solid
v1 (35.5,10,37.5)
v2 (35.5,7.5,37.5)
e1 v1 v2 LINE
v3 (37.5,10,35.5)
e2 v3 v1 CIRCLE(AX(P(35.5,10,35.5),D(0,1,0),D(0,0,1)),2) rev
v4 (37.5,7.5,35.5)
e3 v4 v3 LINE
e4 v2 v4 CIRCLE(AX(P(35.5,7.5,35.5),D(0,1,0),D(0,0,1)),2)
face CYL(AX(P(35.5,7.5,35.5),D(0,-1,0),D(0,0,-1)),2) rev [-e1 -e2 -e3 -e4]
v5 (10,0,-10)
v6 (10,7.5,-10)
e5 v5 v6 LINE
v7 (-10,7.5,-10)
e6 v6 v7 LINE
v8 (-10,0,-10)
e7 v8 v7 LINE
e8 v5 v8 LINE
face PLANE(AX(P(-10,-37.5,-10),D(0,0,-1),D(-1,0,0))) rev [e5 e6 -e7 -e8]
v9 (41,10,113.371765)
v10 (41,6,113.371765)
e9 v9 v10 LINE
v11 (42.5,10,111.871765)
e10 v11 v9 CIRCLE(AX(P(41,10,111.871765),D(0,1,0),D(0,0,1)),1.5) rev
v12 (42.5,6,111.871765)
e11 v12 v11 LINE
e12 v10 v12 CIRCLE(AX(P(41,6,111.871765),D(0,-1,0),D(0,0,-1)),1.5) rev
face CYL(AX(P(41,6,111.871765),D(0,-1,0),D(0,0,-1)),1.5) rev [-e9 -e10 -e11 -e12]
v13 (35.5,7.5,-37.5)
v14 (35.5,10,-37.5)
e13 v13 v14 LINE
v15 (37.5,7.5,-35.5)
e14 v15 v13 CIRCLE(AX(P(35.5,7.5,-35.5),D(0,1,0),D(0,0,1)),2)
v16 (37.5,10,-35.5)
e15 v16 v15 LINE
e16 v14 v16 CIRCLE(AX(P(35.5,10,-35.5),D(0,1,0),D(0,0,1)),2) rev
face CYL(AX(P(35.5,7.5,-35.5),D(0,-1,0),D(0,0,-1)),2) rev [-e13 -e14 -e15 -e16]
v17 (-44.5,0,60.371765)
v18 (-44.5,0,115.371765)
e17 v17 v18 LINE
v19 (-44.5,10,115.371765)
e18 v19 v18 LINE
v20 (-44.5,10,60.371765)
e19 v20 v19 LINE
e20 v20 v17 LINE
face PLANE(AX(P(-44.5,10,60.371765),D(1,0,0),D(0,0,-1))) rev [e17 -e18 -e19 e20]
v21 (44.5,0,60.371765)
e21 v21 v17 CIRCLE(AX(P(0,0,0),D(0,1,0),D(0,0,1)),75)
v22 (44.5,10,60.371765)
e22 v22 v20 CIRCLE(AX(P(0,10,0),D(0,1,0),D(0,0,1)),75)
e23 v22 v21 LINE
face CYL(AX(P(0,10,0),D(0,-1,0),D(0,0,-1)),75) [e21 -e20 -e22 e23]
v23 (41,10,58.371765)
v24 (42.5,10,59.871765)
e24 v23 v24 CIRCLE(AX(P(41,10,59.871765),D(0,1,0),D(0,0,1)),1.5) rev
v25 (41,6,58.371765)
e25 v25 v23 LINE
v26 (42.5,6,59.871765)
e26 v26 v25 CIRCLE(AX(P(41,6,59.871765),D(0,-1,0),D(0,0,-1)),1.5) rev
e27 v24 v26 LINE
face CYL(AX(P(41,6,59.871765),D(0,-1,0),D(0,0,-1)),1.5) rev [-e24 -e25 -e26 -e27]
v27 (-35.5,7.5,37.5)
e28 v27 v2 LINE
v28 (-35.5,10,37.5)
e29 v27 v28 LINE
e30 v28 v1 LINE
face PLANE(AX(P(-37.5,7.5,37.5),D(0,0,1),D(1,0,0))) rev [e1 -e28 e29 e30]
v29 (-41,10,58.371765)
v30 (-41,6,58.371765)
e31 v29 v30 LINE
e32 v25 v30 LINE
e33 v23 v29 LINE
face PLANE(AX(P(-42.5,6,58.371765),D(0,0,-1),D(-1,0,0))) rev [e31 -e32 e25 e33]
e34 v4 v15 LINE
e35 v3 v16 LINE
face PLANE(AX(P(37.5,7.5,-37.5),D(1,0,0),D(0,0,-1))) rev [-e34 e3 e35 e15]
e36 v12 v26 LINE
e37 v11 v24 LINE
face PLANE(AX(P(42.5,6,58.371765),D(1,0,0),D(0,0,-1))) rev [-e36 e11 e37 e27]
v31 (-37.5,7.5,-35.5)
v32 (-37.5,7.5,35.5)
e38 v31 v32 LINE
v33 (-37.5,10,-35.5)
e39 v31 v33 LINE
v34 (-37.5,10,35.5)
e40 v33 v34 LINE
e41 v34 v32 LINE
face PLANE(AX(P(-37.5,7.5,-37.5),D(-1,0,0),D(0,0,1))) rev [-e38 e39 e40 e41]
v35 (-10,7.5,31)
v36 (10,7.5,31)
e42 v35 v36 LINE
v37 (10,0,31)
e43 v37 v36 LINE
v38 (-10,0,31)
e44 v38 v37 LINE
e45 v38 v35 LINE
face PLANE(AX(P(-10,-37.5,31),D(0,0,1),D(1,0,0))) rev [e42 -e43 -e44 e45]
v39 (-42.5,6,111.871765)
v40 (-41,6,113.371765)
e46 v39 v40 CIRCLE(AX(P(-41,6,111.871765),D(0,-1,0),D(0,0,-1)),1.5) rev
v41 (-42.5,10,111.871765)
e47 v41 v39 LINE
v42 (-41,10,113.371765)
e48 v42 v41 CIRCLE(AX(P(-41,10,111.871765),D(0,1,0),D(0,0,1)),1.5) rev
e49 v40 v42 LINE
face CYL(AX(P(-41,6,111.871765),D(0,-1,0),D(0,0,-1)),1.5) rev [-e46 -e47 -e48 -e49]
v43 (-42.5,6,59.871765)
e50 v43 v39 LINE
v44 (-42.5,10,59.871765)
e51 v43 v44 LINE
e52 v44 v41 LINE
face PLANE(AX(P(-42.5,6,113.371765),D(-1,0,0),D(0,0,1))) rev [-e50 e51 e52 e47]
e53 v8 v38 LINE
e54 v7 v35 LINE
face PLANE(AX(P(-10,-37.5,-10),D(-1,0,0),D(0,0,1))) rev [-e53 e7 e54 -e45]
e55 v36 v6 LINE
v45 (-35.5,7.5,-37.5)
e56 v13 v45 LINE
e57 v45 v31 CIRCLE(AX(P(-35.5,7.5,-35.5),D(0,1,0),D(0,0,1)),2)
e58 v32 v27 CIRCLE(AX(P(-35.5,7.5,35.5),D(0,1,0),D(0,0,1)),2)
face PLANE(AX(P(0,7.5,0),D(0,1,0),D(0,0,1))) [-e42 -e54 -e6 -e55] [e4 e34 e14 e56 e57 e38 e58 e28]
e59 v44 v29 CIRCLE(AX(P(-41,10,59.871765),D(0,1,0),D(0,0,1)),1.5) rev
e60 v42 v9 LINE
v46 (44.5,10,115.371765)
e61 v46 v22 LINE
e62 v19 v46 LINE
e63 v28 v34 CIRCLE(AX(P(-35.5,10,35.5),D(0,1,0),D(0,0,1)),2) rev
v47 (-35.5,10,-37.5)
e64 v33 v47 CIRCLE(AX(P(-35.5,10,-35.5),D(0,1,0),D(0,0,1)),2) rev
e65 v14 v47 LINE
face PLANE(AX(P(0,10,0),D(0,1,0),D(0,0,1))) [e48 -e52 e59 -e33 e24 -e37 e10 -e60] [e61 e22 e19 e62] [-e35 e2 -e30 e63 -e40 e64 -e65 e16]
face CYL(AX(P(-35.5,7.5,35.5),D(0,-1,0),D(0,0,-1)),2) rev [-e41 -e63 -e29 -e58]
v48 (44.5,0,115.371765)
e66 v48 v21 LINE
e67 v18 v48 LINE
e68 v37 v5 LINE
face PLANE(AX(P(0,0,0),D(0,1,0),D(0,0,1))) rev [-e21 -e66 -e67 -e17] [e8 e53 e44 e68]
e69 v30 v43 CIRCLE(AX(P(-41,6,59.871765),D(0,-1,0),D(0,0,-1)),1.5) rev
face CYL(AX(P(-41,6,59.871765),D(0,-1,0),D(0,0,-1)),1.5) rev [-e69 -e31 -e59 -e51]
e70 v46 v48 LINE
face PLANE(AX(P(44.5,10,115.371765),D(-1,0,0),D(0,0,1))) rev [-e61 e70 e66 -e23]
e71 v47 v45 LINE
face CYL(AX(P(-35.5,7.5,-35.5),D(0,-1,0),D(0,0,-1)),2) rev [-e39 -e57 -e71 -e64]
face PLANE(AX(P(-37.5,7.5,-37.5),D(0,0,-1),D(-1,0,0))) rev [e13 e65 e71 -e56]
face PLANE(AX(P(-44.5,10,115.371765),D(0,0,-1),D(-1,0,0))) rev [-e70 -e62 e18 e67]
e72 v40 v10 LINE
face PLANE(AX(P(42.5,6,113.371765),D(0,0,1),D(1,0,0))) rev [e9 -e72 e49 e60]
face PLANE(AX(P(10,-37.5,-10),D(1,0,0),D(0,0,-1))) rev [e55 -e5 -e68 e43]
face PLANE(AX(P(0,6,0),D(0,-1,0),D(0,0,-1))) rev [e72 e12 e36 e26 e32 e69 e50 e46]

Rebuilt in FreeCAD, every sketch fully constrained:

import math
import FreeCAD as App
import Part
import Sketcher
Q = App.Units.Quantity


def edges_at(feature, points):
    """Names of the edges that pass closest to the given points."""
    edges = feature.Shape.Edges
    near = lambda p: min(range(len(edges)), key=lambda i: edges[i].distToShape(Part.Vertex(*p))[0])
    return sorted({f"Edge{near(p) + 1}" for p in points})


def add_polygon(sketch, points):
    """Adds a closed chain of lines whose ends are joined by coincident constraints."""
    first, n = sketch.GeometryCount, len(points)
    for a, b in zip(points, points[1:] + points[:1]):
        sketch.addGeometry(Part.LineSegment(App.Vector(*a, 0), App.Vector(*b, 0)), False)
    for i in range(n):
        sketch.addConstraint(Sketcher.Constraint("Coincident", first + i, 2, first + (i + 1) % n, 1))

doc = App.newDocument("Part")
body = doc.addObject("PartDesign::Body", "Body")

sketch1 = body.newObject("Sketcher::SketchObject", "Sketch")
sketch1.AttachmentSupport = (doc.getObject("XZ_Plane"), [""])
sketch1.MapMode = "FlatFace"
sketch1.addGeometry(Part.LineSegment(App.Vector(-44, 60, 0), App.Vector(-44, 115, 0)), False)
sketch1.addGeometry(Part.LineSegment(App.Vector(-44, 115, 0), App.Vector(44, 115, 0)), False)
sketch1.addGeometry(Part.LineSegment(App.Vector(44, 115, 0), App.Vector(44, 60, 0)), False)
sketch1.addGeometry(Part.ArcOfCircle(Part.Circle(App.Vector(0, 0, 0), App.Vector(0, 0, 1), 75), math.radians(126), math.radians(414)), False)
sketch1.addConstraint(Sketcher.Constraint("Coincident", 0, 2, 1, 1))
sketch1.addConstraint(Sketcher.Constraint("Coincident", 1, 2, 2, 1))
sketch1.addConstraint(Sketcher.Constraint("Coincident", 2, 2, 3, 2))
sketch1.addConstraint(Sketcher.Constraint("Coincident", 3, 1, 0, 1))
sketch1.addConstraint(Sketcher.Constraint("Vertical", 0))
sketch1.addConstraint(Sketcher.Constraint("Horizontal", 1))
sketch1.addConstraint(Sketcher.Constraint("Vertical", 2))
sketch1.addConstraint(Sketcher.Constraint("Coincident", 3, 3, -1, 1))
sketch1.addConstraint(Sketcher.Constraint("Horizontal", 2, 2, 3, 1))
sketch1.addConstraint(Sketcher.Constraint("Radius", 3, Q("75 mm")))
sketch1.addConstraint(Sketcher.Constraint("DistanceX", 1, 1, 1, 2, Q("89 mm")))
sketch1.addConstraint(Sketcher.Constraint("DistanceY", 0, 1, 0, 2, Q("55 mm")))
pad1 = body.newObject("PartDesign::Pad", "Pad")
pad1.Profile = sketch1
pad1.Length = 10
pad1.Reversed = True

sketch2 = body.newObject("Sketcher::SketchObject", "Sketch001")
sketch2.AttachmentSupport = (doc.getObject("XZ_Plane"), [""])
sketch2.MapMode = "FlatFace"
sketch2.AttachmentOffset = App.Placement(App.Vector(0, 0, -10), App.Rotation())
add_polygon(sketch2, [(-38, -38), (-38, 38), (38, 38), (38, -38)])
sketch2.addConstraint(Sketcher.Constraint("Vertical", 0))
sketch2.addConstraint(Sketcher.Constraint("Horizontal", 1))
sketch2.addConstraint(Sketcher.Constraint("Vertical", 2))
sketch2.addConstraint(Sketcher.Constraint("Horizontal", 3))
sketch2.addConstraint(Sketcher.Constraint("Symmetric", 0, 2, 2, 2, -1, 1))
sketch2.addConstraint(Sketcher.Constraint("Equal", 3, 0))
sketch2.addConstraint(Sketcher.Constraint("DistanceX", 1, 1, 1, 2, Q("75 mm")))
pocket1 = body.newObject("PartDesign::Pocket", "Pocket")
pocket1.Profile = sketch2
pocket1.Length = 2.5
pocket1.Reversed = True
doc.recompute()

fillet = body.newObject("PartDesign::Fillet", "Fillet")
fillet.Base = (pocket1, edges_at(pocket1, [
    (37.5, 8.75, -37.5),
    (37.5, 8.75, 37.5),
    (-37.5, 8.75, 37.5),
    (-37.5, 8.75, -37.5),
]))
fillet.Radius = 2

sketch3 = body.newObject("Sketcher::SketchObject", "Sketch002")
sketch3.AttachmentSupport = (doc.getObject("XZ_Plane"), [""])
sketch3.MapMode = "FlatFace"
sketch3.AttachmentOffset = App.Placement(App.Vector(0, 0, -10), App.Rotation())
add_polygon(sketch3, [(-42, 58), (-42, 113), (42, 113), (42, 58)])
sketch3.addConstraint(Sketcher.Constraint("Vertical", 0))
sketch3.addConstraint(Sketcher.Constraint("Horizontal", 1))
sketch3.addConstraint(Sketcher.Constraint("Vertical", 2))
sketch3.addConstraint(Sketcher.Constraint("Horizontal", 3))
sketch3.addConstraint(Sketcher.Constraint("DistanceX", 1, 1, 1, 2, Q("85 mm")))
sketch3.addConstraint(Sketcher.Constraint("DistanceY", 0, 1, 0, 2, Q("55 mm")))
sketch3.addConstraint(Sketcher.Constraint("DistanceX", 0, 2, -1, 1, Q("42.5 mm")))
sketch3.addConstraint(Sketcher.Constraint("DistanceY", -1, 1, 0, 2, Q("113.371765 mm")))
pocket2 = body.newObject("PartDesign::Pocket", "Pocket001")
pocket2.Profile = sketch3
pocket2.Length = 4
pocket2.Reversed = True
doc.recompute()

fillet2 = body.newObject("PartDesign::Fillet", "Fillet001")
fillet2.Base = (pocket2, edges_at(pocket2, [
    (42.5, 8, 113.372),
    (-42.5, 8, 113.372),
    (-42.5, 8, 58.372),
    (42.5, 8, 58.372),
]))
fillet2.Radius = 1.5

sketch4 = body.newObject("Sketcher::SketchObject", "Sketch003")
sketch4.AttachmentSupport = (doc.getObject("XZ_Plane"), [""])
sketch4.MapMode = "FlatFace"
sketch4.AttachmentOffset = App.Placement(App.Vector(0, 0, -7.5), App.Rotation())
add_polygon(sketch4, [(-10, -10), (-10, 31), (10, 31), (10, -10)])
sketch4.addConstraint(Sketcher.Constraint("Vertical", 0))
sketch4.addConstraint(Sketcher.Constraint("Horizontal", 1))
sketch4.addConstraint(Sketcher.Constraint("Vertical", 2))
sketch4.addConstraint(Sketcher.Constraint("Horizontal", 3))
sketch4.addConstraint(Sketcher.Constraint("DistanceX", 1, 1, 1, 2, Q("20 mm")))
sketch4.addConstraint(Sketcher.Constraint("DistanceY", 0, 1, 0, 2, Q("41 mm")))
sketch4.addConstraint(Sketcher.Constraint("DistanceX", 0, 2, -1, 1, Q("10 mm")))
sketch4.addConstraint(Sketcher.Constraint("DistanceY", -1, 1, 0, 2, Q("31 mm")))
pocket3 = body.newObject("PartDesign::Pocket", "Pocket002")
pocket3.Profile = sketch4
pocket3.Length = 45
pocket3.Reversed = True

doc.recompute()
